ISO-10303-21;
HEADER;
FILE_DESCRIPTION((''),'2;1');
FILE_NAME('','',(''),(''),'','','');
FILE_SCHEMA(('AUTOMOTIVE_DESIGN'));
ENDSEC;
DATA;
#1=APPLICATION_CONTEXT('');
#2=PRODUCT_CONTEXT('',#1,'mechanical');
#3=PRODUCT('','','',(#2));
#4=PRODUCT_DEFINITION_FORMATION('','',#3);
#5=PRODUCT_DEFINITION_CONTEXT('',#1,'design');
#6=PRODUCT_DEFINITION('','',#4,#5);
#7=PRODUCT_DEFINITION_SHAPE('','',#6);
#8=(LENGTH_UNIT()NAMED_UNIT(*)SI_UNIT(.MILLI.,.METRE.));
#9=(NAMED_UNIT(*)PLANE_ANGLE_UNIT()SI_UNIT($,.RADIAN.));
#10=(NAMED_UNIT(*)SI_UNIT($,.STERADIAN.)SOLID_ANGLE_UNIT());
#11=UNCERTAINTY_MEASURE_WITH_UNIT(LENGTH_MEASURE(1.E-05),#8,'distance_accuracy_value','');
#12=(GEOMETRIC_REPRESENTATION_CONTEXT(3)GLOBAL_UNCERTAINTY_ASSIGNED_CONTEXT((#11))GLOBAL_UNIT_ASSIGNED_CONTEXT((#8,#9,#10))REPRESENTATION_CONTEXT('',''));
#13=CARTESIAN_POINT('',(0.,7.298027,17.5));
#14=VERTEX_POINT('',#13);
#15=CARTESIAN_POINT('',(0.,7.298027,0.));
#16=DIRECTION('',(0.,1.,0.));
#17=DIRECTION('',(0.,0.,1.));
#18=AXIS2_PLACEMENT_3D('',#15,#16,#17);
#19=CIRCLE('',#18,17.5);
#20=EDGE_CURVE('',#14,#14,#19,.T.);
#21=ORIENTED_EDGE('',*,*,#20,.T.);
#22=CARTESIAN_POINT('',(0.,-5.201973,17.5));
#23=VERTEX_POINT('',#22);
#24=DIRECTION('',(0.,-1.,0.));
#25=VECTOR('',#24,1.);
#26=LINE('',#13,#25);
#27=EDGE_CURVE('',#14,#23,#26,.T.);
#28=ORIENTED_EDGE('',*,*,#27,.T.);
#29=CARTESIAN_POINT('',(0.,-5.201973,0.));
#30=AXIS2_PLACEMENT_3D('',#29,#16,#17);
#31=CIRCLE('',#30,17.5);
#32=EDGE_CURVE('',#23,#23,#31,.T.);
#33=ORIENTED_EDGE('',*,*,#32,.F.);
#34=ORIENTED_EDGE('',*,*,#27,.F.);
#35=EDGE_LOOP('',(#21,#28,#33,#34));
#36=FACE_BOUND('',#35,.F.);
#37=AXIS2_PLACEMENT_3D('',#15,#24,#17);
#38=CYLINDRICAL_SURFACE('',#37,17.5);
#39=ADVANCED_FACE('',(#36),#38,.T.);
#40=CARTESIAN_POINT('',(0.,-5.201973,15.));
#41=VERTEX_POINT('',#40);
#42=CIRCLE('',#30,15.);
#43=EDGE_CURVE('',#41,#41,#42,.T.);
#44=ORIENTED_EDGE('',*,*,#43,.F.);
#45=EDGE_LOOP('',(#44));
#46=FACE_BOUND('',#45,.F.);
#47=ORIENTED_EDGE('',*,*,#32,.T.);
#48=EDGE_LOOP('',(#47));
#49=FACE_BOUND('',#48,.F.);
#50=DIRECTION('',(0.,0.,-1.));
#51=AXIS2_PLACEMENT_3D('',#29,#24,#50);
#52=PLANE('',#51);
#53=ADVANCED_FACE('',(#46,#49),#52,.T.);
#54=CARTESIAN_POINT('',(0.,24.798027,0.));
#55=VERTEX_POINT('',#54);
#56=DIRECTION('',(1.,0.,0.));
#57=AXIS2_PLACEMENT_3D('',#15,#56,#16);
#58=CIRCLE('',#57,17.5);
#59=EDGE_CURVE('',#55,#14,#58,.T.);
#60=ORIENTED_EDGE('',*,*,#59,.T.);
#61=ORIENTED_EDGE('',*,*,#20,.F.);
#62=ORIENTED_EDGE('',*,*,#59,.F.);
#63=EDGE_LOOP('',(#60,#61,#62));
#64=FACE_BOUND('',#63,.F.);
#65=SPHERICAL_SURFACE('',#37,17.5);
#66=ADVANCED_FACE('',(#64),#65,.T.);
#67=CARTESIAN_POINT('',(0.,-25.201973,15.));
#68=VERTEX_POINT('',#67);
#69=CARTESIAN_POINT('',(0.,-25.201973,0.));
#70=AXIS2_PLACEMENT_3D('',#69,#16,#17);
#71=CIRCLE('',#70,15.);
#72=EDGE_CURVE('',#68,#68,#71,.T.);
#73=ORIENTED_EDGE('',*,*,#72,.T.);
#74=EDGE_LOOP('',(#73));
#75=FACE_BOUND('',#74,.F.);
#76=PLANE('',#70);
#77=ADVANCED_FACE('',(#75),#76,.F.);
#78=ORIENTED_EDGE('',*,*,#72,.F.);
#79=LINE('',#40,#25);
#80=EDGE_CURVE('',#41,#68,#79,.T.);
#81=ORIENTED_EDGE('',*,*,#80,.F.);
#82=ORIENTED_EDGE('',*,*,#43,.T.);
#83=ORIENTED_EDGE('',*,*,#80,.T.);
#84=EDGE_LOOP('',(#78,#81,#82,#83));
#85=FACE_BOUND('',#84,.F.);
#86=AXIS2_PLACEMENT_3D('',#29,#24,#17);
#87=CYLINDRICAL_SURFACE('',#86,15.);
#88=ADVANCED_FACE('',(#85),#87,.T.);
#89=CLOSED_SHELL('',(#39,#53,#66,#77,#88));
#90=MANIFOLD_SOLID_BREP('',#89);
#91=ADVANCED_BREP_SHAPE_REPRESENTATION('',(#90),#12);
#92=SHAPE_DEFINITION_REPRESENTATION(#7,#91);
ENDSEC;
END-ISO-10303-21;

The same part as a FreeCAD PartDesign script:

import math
import FreeCAD as App
import Part
import Sketcher

doc = App.newDocument("Part")
params = doc.addObject("Spreadsheet::Sheet", "Params")
for row, (alias, value) in enumerate([
    ("sketch1_radius", "17.5 mm"),
    ("sketch1_width", "50 mm"),
    ("sketch1_width2", "20 mm"),
    ("sketch1_height", "15 mm"),
    ("revolution_angle", "360 deg"),
], start=1):
    params.set(f"A{row}", alias)
    params.set(f"B{row}", "=" + value)
    params.setAlias(f"B{row}", alias)

body = doc.addObject("PartDesign::Body", "Body")

# Sketch on YZ plane
sketch1 = doc.addObject("Sketcher::SketchObject", "Sketch")
body.addObject(sketch1)
sketch1.AttachmentSupport = (doc.YZ_Plane, [""])
sketch1.MapMode = "FlatFace"
sketch1.addGeometry(Part.LineSegment(App.Vector(-25.2, 0, 0), App.Vector(24.8, 0, 0)), False)
sketch1.addGeometry(Part.ArcOfCircle(Part.Circle(App.Vector(7.3, 0, 0), App.Vector(0, 0, 1), 17.5), math.radians(0), math.radians(90)), False)
sketch1.addGeometry(Part.LineSegment(App.Vector(7.3, 17.5, 0), App.Vector(-5.2, 17.5, 0)), False)
sketch1.addGeometry(Part.LineSegment(App.Vector(-5.2, 17.5, 0), App.Vector(-5.2, 15, 0)), False)
sketch1.addGeometry(Part.LineSegment(App.Vector(-5.2, 15, 0), App.Vector(-25.2, 15, 0)), False)
sketch1.addGeometry(Part.LineSegment(App.Vector(-25.2, 15, 0), App.Vector(-25.2, 0, 0)), False)
sketch1.addConstraint(Sketcher.Constraint("Coincident", 0, 2, 1, 1))
sketch1.addConstraint(Sketcher.Constraint("Tangent", 1, 2, 2, 1))
sketch1.addConstraint(Sketcher.Constraint("Coincident", 2, 2, 3, 1))
sketch1.addConstraint(Sketcher.Constraint("Coincident", 3, 2, 4, 1))
sketch1.addConstraint(Sketcher.Constraint("Coincident", 4, 2, 5, 1))
sketch1.addConstraint(Sketcher.Constraint("Coincident", 5, 2, 0, 1))
sketch1.addConstraint(Sketcher.Constraint("Horizontal", 0))
sketch1.addConstraint(Sketcher.Constraint("Horizontal", 2))
sketch1.addConstraint(Sketcher.Constraint("Vertical", 3))
sketch1.addConstraint(Sketcher.Constraint("Horizontal", 4))
sketch1.addConstraint(Sketcher.Constraint("Vertical", 5))
sketch1.addConstraint(Sketcher.Constraint("PointOnObject", 1, 3, -1))
sketch1.addConstraint(Sketcher.Constraint("PointOnObject", 0, 2, -1))
sketch1.addConstraint(Sketcher.Constraint("Radius", 1, 17.5))
sketch1.addConstraint(Sketcher.Constraint("DistanceX", 0, 1, 0, 2, 50.0))
sketch1.addConstraint(Sketcher.Constraint("DistanceX", 4, 2, 4, 1, 20.0))
sketch1.addConstraint(Sketcher.Constraint("DistanceY", 5, 2, 5, 1, 15.0))
sketch1.addConstraint(Sketcher.Constraint("DistanceX", -1, 1, 1, 3, 7.298027))
sketch1.setExpression("Constraints[13]", "Params.sketch1_radius")
sketch1.setExpression("Constraints[14]", "Params.sketch1_width")
sketch1.setExpression("Constraints[15]", "Params.sketch1_width2")
sketch1.setExpression("Constraints[16]", "Params.sketch1_height")
revolution = doc.addObject("PartDesign::Revolution", "Revolution")
body.addObject(revolution)
revolution.Profile = sketch1
revolution.ReferenceAxis = (sketch1, ["H_Axis"])
revolution.setExpression("Angle", "Params.revolution_angle")

doc.recompute()
